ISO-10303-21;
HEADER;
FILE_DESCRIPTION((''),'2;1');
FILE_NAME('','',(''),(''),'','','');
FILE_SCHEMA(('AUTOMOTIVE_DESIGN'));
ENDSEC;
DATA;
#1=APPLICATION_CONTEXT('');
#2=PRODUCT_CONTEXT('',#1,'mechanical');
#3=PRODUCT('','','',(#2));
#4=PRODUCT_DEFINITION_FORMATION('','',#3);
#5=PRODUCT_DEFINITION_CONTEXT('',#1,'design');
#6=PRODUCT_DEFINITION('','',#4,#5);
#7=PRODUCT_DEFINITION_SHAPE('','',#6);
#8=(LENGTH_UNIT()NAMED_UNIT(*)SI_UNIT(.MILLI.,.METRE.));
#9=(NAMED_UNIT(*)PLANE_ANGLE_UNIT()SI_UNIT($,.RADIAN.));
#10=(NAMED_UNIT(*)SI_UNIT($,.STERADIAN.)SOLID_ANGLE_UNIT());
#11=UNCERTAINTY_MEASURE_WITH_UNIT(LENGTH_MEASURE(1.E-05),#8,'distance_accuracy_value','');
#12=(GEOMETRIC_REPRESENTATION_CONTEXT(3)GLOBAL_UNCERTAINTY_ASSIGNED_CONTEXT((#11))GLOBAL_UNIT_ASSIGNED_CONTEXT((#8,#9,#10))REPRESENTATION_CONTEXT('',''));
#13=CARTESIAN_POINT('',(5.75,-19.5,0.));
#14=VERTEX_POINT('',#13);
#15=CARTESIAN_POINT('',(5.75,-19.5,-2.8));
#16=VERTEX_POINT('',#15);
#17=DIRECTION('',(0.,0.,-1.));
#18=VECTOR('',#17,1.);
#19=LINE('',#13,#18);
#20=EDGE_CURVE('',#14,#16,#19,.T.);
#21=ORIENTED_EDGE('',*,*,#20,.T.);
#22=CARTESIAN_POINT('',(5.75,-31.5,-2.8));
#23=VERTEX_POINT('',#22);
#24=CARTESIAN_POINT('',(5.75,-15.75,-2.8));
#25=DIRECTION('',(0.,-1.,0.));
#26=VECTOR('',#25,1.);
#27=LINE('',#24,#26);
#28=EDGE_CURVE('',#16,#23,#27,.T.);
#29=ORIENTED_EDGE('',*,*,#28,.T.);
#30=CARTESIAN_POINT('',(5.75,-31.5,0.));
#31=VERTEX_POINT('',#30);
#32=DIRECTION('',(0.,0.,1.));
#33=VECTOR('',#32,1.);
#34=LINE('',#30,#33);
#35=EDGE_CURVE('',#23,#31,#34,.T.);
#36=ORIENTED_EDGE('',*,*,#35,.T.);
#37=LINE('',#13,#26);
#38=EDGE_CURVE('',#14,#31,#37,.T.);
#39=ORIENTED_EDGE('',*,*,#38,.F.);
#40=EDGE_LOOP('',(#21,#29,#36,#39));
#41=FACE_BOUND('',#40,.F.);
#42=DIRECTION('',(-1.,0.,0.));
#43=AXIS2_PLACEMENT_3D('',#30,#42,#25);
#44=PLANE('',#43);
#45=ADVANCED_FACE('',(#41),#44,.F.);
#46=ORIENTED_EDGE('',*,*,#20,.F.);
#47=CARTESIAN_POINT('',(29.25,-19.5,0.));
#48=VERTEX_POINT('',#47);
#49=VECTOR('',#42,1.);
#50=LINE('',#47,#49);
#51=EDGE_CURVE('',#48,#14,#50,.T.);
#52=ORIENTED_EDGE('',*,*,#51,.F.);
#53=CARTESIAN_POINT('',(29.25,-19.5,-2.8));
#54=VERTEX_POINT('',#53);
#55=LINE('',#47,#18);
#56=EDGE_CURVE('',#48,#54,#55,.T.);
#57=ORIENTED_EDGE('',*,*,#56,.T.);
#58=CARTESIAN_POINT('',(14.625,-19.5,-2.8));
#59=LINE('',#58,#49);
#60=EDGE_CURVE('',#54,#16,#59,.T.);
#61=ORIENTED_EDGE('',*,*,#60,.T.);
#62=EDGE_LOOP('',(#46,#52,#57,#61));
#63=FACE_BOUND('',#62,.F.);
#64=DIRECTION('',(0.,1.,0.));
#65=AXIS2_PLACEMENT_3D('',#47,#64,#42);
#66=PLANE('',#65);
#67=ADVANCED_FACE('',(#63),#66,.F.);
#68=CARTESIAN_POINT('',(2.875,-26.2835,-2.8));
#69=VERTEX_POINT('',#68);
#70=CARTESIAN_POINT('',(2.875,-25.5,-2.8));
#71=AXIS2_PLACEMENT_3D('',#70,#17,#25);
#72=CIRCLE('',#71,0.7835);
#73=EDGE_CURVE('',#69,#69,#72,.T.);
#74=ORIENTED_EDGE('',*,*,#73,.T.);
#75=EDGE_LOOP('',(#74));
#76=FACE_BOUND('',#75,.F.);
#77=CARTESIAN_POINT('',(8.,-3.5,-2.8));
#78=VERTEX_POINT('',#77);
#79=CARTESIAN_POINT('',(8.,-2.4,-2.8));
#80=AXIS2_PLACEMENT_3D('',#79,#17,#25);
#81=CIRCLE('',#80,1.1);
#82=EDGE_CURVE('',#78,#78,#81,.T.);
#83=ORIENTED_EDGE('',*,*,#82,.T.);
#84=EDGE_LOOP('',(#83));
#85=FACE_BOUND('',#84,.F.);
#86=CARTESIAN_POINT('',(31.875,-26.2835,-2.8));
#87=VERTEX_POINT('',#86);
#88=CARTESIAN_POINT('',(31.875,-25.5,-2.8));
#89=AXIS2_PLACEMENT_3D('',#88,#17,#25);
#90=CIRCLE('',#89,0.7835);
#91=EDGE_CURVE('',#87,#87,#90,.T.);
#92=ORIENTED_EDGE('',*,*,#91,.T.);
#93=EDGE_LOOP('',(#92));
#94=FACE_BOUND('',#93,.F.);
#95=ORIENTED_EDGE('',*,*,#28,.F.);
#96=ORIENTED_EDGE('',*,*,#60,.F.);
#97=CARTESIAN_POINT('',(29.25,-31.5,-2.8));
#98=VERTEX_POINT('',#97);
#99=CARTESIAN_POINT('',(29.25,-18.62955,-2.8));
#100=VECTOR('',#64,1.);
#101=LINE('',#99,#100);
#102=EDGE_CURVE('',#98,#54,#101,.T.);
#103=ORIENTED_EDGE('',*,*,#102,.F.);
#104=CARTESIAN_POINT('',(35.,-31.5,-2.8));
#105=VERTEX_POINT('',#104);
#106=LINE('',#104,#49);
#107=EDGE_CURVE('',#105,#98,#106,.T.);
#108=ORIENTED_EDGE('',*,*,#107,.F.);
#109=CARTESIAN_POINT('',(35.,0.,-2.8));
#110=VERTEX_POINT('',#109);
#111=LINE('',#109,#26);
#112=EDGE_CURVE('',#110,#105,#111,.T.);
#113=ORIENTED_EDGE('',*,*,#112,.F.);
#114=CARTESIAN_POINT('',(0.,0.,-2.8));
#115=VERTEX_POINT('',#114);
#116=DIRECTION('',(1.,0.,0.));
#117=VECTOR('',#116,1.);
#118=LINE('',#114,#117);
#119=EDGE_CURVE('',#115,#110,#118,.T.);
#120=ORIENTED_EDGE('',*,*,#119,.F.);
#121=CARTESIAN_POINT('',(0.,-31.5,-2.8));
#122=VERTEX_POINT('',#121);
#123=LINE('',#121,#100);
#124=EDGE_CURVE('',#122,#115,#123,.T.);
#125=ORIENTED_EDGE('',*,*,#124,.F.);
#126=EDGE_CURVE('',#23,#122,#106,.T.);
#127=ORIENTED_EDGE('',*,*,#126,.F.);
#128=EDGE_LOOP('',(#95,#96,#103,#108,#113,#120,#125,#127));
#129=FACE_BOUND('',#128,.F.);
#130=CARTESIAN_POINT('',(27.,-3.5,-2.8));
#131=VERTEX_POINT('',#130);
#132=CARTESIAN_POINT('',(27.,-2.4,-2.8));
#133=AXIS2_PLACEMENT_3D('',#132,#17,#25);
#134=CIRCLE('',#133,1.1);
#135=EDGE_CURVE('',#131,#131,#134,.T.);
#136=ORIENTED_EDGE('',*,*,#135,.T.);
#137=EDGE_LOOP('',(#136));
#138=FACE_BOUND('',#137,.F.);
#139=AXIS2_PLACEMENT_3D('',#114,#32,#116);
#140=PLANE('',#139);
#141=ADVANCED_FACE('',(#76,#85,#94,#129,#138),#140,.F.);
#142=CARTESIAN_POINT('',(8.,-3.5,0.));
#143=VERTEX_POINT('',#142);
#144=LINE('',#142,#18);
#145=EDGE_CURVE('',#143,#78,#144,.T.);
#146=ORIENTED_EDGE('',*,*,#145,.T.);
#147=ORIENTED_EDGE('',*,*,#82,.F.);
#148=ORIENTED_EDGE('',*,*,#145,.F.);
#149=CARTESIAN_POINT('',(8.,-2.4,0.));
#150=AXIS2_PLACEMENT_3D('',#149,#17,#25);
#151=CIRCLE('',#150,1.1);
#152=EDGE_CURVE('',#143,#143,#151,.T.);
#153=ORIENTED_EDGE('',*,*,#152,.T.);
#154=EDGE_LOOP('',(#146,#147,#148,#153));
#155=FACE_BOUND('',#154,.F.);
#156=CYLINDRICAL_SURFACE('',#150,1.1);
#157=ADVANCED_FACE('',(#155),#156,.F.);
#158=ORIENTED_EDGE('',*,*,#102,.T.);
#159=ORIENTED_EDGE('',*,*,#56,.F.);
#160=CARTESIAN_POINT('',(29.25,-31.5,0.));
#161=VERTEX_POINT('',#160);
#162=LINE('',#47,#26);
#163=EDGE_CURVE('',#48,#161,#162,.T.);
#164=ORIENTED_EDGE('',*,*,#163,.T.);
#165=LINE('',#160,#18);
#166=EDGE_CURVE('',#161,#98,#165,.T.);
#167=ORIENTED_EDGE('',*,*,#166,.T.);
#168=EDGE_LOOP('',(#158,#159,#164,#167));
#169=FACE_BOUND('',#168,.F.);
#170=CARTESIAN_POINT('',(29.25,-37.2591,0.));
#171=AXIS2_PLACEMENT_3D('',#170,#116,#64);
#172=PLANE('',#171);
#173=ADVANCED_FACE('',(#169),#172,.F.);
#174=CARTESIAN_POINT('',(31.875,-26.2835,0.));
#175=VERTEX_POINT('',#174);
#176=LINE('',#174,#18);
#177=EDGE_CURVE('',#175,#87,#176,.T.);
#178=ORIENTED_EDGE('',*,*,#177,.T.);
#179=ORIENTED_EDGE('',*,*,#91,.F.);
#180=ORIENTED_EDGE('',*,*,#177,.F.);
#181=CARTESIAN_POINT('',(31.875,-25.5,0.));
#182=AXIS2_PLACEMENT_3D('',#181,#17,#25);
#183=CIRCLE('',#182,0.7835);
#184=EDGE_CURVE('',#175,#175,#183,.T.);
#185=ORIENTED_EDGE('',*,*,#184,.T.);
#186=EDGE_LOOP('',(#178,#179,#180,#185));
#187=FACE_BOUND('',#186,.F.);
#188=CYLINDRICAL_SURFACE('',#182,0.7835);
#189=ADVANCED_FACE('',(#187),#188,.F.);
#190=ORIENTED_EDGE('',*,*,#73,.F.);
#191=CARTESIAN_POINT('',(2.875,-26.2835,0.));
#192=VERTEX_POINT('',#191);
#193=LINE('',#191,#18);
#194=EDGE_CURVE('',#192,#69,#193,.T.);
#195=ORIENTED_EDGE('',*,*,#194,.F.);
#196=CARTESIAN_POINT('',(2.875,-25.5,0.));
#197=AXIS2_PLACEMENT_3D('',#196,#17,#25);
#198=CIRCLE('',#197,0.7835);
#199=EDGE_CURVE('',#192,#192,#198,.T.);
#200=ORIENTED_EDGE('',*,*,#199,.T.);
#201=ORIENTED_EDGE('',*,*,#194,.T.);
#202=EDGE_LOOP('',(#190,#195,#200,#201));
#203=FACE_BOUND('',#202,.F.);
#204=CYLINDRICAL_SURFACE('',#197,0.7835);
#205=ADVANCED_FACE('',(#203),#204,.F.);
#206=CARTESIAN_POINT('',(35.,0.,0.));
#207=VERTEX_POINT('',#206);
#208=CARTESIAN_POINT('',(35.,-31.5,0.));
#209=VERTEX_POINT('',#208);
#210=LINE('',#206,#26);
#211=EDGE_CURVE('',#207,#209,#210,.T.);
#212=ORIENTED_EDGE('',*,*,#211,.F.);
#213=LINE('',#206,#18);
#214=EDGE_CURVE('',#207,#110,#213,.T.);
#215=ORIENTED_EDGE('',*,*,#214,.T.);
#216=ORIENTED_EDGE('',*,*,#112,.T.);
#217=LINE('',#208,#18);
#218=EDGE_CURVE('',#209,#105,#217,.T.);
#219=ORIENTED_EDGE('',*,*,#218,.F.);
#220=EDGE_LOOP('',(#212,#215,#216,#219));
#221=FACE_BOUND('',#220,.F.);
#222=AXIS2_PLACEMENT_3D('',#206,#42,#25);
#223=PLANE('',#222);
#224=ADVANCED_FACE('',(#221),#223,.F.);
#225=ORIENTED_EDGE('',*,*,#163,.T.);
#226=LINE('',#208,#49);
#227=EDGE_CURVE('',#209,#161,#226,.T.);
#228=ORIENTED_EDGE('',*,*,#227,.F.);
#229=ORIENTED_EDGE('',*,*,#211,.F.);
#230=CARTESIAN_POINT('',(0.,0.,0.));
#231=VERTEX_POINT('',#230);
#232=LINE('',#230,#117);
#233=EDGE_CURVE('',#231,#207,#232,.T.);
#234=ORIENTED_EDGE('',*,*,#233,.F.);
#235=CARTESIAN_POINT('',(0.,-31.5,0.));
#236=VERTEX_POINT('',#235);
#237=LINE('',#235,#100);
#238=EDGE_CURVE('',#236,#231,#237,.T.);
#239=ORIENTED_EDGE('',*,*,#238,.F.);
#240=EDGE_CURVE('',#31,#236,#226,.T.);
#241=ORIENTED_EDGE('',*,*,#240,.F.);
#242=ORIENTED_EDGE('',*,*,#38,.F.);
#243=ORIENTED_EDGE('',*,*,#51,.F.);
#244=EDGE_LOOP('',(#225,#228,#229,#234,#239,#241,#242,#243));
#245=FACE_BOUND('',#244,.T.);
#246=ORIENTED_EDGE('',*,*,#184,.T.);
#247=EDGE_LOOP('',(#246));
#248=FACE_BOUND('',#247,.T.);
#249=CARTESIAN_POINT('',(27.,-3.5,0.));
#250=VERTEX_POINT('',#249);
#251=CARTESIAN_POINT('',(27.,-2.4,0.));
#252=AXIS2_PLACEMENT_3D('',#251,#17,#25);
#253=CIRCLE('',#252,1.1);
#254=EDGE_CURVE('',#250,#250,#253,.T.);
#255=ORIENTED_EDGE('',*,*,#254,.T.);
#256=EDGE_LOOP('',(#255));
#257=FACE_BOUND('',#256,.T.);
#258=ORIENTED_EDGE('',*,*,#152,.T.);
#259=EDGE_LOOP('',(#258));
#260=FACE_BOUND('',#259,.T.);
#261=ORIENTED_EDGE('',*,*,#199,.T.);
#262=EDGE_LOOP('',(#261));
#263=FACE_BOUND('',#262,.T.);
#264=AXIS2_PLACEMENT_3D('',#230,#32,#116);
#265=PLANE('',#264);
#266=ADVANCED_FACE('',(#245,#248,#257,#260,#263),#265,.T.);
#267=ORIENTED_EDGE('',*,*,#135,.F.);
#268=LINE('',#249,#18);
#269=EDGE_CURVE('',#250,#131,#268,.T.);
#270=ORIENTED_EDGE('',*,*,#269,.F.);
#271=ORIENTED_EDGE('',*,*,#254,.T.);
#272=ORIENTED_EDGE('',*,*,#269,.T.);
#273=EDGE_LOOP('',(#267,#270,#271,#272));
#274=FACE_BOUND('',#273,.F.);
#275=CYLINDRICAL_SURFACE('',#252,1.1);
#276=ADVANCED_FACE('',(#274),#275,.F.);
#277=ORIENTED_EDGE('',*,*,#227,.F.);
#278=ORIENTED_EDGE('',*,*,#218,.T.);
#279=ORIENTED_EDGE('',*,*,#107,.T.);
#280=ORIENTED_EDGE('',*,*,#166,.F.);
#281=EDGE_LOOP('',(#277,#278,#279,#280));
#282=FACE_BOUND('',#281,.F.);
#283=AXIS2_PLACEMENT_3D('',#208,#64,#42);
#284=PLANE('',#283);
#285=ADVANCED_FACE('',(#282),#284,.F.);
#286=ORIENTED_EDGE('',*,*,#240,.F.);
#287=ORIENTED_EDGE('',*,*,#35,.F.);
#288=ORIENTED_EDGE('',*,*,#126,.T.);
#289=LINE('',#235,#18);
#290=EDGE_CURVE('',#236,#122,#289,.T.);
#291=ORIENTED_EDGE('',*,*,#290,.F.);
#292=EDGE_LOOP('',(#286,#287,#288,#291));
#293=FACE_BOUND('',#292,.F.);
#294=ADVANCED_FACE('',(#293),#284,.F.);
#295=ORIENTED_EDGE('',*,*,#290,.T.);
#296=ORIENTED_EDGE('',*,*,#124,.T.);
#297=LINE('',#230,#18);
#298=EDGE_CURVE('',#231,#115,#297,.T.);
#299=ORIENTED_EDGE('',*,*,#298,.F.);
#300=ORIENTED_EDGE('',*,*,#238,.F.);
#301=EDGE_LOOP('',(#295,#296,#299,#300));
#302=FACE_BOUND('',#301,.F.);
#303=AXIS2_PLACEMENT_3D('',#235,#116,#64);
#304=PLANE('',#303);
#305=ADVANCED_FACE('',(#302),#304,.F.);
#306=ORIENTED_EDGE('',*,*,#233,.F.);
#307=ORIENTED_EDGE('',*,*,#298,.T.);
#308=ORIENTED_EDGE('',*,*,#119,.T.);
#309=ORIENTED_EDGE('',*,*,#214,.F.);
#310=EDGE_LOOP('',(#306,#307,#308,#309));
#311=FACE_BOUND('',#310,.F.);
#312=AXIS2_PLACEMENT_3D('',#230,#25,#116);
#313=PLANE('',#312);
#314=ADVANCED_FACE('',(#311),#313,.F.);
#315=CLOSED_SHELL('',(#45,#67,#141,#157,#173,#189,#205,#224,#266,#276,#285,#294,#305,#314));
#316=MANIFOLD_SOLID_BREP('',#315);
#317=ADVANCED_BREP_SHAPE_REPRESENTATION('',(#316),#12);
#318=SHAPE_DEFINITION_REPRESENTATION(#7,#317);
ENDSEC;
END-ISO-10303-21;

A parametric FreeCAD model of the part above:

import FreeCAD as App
import Part
import Sketcher

doc = App.newDocument("Part")
body = doc.addObject("PartDesign::Body", "Body")

# Sketch on XY plane
sketch1 = body.newObject("Sketcher::SketchObject", "Sketch")
sketch1.AttachmentSupport = (doc.getObject("XY_Plane"), [""])
sketch1.MapMode = "FlatFace"
sketch1.addGeometry(Part.LineSegment(App.Vector(35, 0, 0), App.Vector(0, 0, 0)), False)
sketch1.addGeometry(Part.LineSegment(App.Vector(0, 0, 0), App.Vector(0, -32, 0)), False)
sketch1.addGeometry(Part.LineSegment(App.Vector(0, -32, 0), App.Vector(35, -32, 0)), False)
sketch1.addGeometry(Part.LineSegment(App.Vector(35, -32, 0), App.Vector(35, 0, 0)), False)
sketch1.addConstraint(Sketcher.Constraint("Coincident", 0, 2, 1, 1))
sketch1.addConstraint(Sketcher.Constraint("Coincident", 1, 2, 2, 1))
sketch1.addConstraint(Sketcher.Constraint("Coincident", 2, 2, 3, 1))
sketch1.addConstraint(Sketcher.Constraint("Coincident", 3, 2, 0, 1))
sketch1.addConstraint(Sketcher.Constraint("Horizontal", 0))
sketch1.addConstraint(Sketcher.Constraint("Vertical", 1))
sketch1.addConstraint(Sketcher.Constraint("Horizontal", 2))
sketch1.addConstraint(Sketcher.Constraint("Vertical", 3))
sketch1.addConstraint(Sketcher.Constraint("Coincident", 0, 2, -1, 1))
sketch1.addConstraint(Sketcher.Constraint("DistanceX", 0, 2, 0, 1, 35.0))
sketch1.addConstraint(Sketcher.Constraint("DistanceY", 1, 2, 1, 1, 31.5))
pad1 = body.newObject("PartDesign::Pad", "Pad")
pad1.Profile = sketch1
pad1.Length = 2.8
pad1.Reversed = True

# Sketch on XY plane
sketch2 = body.newObject("Sketcher::SketchObject", "Sketch001")
sketch2.AttachmentSupport = (doc.getObject("XY_Plane"), [""])
sketch2.MapMode = "FlatFace"
sketch2.addGeometry(Part.LineSegment(App.Vector(29, -37, 0), App.Vector(29, -20, 0)), False)
sketch2.addGeometry(Part.LineSegment(App.Vector(29, -20, 0), App.Vector(6, -20, 0)), False)
sketch2.addGeometry(Part.LineSegment(App.Vector(6, -20, 0), App.Vector(6, -37, 0)), False)
sketch2.addGeometry(Part.LineSegment(App.Vector(6, -37, 0), App.Vector(29, -37, 0)), False)
sketch2.addConstraint(Sketcher.Constraint("Coincident", 0, 2, 1, 1))
sketch2.addConstraint(Sketcher.Constraint("Coincident", 1, 2, 2, 1))
sketch2.addConstraint(Sketcher.Constraint("Coincident", 2, 2, 3, 1))
sketch2.addConstraint(Sketcher.Constraint("Coincident", 3, 2, 0, 1))
sketch2.addConstraint(Sketcher.Constraint("Vertical", 0))
sketch2.addConstraint(Sketcher.Constraint("Horizontal", 1))
sketch2.addConstraint(Sketcher.Constraint("Vertical", 2))
sketch2.addConstraint(Sketcher.Constraint("Horizontal", 3))
sketch2.addConstraint(Sketcher.Constraint("DistanceX", 1, 2, 1, 1, 23.5))
sketch2.addConstraint(Sketcher.Constraint("DistanceY", 0, 2, -1, 1, 19.5))
sketch2.addConstraint(Sketcher.Constraint("DistanceY", 0, 1, 0, 2, 17.759))
sketch2.addConstraint(Sketcher.Constraint("DistanceX", -1, 1, 0, 2, 29.25))
pocket1 = body.newObject("PartDesign::Pocket", "Pocket")
pocket1.Profile = sketch2
pocket1.Type = "ThroughAll"

# Sketch on XY plane
sketch3 = body.newObject("Sketcher::SketchObject", "Sketch002")
sketch3.AttachmentSupport = (doc.getObject("XY_Plane"), [""])
sketch3.MapMode = "FlatFace"
sketch3.addGeometry(Part.Circle(App.Vector(8, -2.4, 0), App.Vector(0, 0, 1), 1.1), False)
sketch3.addGeometry(Part.Circle(App.Vector(27, -2.4, 0), App.Vector(0, 0, 1), 1.1), False)
sketch3.addConstraint(Sketcher.Constraint("Equal", 0, 1))
sketch3.addConstraint(Sketcher.Constraint("Horizontal", 0, 3, 1, 3))
sketch3.addConstraint(Sketcher.Constraint("Diameter", 0, 2.2))
sketch3.addConstraint(Sketcher.Constraint("DistanceX", -1, 1, 0, 3, 8.0))
sketch3.addConstraint(Sketcher.Constraint("DistanceX", -1, 1, 1, 3, 27.0))
sketch3.addConstraint(Sketcher.Constraint("DistanceY", 0, 3, -1, 1, 2.4))
doc.recompute()
hole = body.newObject("PartDesign::Hole", "Hole")
hole.Profile = sketch3
hole.ThreadType = "None"
hole.Diameter = 2.2
hole.DepthType = "ThroughAll"

# Sketch on XY plane
sketch4 = body.newObject("Sketcher::SketchObject", "Sketch003")
sketch4.AttachmentSupport = (doc.getObject("XY_Plane"), [""])
sketch4.MapMode = "FlatFace"
sketch4.addGeometry(Part.Circle(App.Vector(2.9, -25.5, 0), App.Vector(0, 0, 1), 0.8), False)
sketch4.addGeometry(Part.Circle(App.Vector(31.9, -25.5, 0), App.Vector(0, 0, 1), 0.8), False)
sketch4.addConstraint(Sketcher.Constraint("Equal", 0, 1))
sketch4.addConstraint(Sketcher.Constraint("Horizontal", 0, 3, 1, 3))
sketch4.addConstraint(Sketcher.Constraint("Diameter", 0, 1.567))
sketch4.addConstraint(Sketcher.Constraint("DistanceX", 0, 3, 1, 3, 29.0))
sketch4.addConstraint(Sketcher.Constraint("DistanceY", 0, 3, -1, 1, 25.5))
sketch4.addConstraint(Sketcher.Constraint("DistanceX", -1, 1, 0, 3, 2.875))
doc.recompute()
hole2 = body.newObject("PartDesign::Hole", "Hole001")
hole2.Profile = sketch4
hole2.ThreadType = "None"
hole2.Diameter = 1.567
hole2.DepthType = "ThroughAll"

doc.recompute()
